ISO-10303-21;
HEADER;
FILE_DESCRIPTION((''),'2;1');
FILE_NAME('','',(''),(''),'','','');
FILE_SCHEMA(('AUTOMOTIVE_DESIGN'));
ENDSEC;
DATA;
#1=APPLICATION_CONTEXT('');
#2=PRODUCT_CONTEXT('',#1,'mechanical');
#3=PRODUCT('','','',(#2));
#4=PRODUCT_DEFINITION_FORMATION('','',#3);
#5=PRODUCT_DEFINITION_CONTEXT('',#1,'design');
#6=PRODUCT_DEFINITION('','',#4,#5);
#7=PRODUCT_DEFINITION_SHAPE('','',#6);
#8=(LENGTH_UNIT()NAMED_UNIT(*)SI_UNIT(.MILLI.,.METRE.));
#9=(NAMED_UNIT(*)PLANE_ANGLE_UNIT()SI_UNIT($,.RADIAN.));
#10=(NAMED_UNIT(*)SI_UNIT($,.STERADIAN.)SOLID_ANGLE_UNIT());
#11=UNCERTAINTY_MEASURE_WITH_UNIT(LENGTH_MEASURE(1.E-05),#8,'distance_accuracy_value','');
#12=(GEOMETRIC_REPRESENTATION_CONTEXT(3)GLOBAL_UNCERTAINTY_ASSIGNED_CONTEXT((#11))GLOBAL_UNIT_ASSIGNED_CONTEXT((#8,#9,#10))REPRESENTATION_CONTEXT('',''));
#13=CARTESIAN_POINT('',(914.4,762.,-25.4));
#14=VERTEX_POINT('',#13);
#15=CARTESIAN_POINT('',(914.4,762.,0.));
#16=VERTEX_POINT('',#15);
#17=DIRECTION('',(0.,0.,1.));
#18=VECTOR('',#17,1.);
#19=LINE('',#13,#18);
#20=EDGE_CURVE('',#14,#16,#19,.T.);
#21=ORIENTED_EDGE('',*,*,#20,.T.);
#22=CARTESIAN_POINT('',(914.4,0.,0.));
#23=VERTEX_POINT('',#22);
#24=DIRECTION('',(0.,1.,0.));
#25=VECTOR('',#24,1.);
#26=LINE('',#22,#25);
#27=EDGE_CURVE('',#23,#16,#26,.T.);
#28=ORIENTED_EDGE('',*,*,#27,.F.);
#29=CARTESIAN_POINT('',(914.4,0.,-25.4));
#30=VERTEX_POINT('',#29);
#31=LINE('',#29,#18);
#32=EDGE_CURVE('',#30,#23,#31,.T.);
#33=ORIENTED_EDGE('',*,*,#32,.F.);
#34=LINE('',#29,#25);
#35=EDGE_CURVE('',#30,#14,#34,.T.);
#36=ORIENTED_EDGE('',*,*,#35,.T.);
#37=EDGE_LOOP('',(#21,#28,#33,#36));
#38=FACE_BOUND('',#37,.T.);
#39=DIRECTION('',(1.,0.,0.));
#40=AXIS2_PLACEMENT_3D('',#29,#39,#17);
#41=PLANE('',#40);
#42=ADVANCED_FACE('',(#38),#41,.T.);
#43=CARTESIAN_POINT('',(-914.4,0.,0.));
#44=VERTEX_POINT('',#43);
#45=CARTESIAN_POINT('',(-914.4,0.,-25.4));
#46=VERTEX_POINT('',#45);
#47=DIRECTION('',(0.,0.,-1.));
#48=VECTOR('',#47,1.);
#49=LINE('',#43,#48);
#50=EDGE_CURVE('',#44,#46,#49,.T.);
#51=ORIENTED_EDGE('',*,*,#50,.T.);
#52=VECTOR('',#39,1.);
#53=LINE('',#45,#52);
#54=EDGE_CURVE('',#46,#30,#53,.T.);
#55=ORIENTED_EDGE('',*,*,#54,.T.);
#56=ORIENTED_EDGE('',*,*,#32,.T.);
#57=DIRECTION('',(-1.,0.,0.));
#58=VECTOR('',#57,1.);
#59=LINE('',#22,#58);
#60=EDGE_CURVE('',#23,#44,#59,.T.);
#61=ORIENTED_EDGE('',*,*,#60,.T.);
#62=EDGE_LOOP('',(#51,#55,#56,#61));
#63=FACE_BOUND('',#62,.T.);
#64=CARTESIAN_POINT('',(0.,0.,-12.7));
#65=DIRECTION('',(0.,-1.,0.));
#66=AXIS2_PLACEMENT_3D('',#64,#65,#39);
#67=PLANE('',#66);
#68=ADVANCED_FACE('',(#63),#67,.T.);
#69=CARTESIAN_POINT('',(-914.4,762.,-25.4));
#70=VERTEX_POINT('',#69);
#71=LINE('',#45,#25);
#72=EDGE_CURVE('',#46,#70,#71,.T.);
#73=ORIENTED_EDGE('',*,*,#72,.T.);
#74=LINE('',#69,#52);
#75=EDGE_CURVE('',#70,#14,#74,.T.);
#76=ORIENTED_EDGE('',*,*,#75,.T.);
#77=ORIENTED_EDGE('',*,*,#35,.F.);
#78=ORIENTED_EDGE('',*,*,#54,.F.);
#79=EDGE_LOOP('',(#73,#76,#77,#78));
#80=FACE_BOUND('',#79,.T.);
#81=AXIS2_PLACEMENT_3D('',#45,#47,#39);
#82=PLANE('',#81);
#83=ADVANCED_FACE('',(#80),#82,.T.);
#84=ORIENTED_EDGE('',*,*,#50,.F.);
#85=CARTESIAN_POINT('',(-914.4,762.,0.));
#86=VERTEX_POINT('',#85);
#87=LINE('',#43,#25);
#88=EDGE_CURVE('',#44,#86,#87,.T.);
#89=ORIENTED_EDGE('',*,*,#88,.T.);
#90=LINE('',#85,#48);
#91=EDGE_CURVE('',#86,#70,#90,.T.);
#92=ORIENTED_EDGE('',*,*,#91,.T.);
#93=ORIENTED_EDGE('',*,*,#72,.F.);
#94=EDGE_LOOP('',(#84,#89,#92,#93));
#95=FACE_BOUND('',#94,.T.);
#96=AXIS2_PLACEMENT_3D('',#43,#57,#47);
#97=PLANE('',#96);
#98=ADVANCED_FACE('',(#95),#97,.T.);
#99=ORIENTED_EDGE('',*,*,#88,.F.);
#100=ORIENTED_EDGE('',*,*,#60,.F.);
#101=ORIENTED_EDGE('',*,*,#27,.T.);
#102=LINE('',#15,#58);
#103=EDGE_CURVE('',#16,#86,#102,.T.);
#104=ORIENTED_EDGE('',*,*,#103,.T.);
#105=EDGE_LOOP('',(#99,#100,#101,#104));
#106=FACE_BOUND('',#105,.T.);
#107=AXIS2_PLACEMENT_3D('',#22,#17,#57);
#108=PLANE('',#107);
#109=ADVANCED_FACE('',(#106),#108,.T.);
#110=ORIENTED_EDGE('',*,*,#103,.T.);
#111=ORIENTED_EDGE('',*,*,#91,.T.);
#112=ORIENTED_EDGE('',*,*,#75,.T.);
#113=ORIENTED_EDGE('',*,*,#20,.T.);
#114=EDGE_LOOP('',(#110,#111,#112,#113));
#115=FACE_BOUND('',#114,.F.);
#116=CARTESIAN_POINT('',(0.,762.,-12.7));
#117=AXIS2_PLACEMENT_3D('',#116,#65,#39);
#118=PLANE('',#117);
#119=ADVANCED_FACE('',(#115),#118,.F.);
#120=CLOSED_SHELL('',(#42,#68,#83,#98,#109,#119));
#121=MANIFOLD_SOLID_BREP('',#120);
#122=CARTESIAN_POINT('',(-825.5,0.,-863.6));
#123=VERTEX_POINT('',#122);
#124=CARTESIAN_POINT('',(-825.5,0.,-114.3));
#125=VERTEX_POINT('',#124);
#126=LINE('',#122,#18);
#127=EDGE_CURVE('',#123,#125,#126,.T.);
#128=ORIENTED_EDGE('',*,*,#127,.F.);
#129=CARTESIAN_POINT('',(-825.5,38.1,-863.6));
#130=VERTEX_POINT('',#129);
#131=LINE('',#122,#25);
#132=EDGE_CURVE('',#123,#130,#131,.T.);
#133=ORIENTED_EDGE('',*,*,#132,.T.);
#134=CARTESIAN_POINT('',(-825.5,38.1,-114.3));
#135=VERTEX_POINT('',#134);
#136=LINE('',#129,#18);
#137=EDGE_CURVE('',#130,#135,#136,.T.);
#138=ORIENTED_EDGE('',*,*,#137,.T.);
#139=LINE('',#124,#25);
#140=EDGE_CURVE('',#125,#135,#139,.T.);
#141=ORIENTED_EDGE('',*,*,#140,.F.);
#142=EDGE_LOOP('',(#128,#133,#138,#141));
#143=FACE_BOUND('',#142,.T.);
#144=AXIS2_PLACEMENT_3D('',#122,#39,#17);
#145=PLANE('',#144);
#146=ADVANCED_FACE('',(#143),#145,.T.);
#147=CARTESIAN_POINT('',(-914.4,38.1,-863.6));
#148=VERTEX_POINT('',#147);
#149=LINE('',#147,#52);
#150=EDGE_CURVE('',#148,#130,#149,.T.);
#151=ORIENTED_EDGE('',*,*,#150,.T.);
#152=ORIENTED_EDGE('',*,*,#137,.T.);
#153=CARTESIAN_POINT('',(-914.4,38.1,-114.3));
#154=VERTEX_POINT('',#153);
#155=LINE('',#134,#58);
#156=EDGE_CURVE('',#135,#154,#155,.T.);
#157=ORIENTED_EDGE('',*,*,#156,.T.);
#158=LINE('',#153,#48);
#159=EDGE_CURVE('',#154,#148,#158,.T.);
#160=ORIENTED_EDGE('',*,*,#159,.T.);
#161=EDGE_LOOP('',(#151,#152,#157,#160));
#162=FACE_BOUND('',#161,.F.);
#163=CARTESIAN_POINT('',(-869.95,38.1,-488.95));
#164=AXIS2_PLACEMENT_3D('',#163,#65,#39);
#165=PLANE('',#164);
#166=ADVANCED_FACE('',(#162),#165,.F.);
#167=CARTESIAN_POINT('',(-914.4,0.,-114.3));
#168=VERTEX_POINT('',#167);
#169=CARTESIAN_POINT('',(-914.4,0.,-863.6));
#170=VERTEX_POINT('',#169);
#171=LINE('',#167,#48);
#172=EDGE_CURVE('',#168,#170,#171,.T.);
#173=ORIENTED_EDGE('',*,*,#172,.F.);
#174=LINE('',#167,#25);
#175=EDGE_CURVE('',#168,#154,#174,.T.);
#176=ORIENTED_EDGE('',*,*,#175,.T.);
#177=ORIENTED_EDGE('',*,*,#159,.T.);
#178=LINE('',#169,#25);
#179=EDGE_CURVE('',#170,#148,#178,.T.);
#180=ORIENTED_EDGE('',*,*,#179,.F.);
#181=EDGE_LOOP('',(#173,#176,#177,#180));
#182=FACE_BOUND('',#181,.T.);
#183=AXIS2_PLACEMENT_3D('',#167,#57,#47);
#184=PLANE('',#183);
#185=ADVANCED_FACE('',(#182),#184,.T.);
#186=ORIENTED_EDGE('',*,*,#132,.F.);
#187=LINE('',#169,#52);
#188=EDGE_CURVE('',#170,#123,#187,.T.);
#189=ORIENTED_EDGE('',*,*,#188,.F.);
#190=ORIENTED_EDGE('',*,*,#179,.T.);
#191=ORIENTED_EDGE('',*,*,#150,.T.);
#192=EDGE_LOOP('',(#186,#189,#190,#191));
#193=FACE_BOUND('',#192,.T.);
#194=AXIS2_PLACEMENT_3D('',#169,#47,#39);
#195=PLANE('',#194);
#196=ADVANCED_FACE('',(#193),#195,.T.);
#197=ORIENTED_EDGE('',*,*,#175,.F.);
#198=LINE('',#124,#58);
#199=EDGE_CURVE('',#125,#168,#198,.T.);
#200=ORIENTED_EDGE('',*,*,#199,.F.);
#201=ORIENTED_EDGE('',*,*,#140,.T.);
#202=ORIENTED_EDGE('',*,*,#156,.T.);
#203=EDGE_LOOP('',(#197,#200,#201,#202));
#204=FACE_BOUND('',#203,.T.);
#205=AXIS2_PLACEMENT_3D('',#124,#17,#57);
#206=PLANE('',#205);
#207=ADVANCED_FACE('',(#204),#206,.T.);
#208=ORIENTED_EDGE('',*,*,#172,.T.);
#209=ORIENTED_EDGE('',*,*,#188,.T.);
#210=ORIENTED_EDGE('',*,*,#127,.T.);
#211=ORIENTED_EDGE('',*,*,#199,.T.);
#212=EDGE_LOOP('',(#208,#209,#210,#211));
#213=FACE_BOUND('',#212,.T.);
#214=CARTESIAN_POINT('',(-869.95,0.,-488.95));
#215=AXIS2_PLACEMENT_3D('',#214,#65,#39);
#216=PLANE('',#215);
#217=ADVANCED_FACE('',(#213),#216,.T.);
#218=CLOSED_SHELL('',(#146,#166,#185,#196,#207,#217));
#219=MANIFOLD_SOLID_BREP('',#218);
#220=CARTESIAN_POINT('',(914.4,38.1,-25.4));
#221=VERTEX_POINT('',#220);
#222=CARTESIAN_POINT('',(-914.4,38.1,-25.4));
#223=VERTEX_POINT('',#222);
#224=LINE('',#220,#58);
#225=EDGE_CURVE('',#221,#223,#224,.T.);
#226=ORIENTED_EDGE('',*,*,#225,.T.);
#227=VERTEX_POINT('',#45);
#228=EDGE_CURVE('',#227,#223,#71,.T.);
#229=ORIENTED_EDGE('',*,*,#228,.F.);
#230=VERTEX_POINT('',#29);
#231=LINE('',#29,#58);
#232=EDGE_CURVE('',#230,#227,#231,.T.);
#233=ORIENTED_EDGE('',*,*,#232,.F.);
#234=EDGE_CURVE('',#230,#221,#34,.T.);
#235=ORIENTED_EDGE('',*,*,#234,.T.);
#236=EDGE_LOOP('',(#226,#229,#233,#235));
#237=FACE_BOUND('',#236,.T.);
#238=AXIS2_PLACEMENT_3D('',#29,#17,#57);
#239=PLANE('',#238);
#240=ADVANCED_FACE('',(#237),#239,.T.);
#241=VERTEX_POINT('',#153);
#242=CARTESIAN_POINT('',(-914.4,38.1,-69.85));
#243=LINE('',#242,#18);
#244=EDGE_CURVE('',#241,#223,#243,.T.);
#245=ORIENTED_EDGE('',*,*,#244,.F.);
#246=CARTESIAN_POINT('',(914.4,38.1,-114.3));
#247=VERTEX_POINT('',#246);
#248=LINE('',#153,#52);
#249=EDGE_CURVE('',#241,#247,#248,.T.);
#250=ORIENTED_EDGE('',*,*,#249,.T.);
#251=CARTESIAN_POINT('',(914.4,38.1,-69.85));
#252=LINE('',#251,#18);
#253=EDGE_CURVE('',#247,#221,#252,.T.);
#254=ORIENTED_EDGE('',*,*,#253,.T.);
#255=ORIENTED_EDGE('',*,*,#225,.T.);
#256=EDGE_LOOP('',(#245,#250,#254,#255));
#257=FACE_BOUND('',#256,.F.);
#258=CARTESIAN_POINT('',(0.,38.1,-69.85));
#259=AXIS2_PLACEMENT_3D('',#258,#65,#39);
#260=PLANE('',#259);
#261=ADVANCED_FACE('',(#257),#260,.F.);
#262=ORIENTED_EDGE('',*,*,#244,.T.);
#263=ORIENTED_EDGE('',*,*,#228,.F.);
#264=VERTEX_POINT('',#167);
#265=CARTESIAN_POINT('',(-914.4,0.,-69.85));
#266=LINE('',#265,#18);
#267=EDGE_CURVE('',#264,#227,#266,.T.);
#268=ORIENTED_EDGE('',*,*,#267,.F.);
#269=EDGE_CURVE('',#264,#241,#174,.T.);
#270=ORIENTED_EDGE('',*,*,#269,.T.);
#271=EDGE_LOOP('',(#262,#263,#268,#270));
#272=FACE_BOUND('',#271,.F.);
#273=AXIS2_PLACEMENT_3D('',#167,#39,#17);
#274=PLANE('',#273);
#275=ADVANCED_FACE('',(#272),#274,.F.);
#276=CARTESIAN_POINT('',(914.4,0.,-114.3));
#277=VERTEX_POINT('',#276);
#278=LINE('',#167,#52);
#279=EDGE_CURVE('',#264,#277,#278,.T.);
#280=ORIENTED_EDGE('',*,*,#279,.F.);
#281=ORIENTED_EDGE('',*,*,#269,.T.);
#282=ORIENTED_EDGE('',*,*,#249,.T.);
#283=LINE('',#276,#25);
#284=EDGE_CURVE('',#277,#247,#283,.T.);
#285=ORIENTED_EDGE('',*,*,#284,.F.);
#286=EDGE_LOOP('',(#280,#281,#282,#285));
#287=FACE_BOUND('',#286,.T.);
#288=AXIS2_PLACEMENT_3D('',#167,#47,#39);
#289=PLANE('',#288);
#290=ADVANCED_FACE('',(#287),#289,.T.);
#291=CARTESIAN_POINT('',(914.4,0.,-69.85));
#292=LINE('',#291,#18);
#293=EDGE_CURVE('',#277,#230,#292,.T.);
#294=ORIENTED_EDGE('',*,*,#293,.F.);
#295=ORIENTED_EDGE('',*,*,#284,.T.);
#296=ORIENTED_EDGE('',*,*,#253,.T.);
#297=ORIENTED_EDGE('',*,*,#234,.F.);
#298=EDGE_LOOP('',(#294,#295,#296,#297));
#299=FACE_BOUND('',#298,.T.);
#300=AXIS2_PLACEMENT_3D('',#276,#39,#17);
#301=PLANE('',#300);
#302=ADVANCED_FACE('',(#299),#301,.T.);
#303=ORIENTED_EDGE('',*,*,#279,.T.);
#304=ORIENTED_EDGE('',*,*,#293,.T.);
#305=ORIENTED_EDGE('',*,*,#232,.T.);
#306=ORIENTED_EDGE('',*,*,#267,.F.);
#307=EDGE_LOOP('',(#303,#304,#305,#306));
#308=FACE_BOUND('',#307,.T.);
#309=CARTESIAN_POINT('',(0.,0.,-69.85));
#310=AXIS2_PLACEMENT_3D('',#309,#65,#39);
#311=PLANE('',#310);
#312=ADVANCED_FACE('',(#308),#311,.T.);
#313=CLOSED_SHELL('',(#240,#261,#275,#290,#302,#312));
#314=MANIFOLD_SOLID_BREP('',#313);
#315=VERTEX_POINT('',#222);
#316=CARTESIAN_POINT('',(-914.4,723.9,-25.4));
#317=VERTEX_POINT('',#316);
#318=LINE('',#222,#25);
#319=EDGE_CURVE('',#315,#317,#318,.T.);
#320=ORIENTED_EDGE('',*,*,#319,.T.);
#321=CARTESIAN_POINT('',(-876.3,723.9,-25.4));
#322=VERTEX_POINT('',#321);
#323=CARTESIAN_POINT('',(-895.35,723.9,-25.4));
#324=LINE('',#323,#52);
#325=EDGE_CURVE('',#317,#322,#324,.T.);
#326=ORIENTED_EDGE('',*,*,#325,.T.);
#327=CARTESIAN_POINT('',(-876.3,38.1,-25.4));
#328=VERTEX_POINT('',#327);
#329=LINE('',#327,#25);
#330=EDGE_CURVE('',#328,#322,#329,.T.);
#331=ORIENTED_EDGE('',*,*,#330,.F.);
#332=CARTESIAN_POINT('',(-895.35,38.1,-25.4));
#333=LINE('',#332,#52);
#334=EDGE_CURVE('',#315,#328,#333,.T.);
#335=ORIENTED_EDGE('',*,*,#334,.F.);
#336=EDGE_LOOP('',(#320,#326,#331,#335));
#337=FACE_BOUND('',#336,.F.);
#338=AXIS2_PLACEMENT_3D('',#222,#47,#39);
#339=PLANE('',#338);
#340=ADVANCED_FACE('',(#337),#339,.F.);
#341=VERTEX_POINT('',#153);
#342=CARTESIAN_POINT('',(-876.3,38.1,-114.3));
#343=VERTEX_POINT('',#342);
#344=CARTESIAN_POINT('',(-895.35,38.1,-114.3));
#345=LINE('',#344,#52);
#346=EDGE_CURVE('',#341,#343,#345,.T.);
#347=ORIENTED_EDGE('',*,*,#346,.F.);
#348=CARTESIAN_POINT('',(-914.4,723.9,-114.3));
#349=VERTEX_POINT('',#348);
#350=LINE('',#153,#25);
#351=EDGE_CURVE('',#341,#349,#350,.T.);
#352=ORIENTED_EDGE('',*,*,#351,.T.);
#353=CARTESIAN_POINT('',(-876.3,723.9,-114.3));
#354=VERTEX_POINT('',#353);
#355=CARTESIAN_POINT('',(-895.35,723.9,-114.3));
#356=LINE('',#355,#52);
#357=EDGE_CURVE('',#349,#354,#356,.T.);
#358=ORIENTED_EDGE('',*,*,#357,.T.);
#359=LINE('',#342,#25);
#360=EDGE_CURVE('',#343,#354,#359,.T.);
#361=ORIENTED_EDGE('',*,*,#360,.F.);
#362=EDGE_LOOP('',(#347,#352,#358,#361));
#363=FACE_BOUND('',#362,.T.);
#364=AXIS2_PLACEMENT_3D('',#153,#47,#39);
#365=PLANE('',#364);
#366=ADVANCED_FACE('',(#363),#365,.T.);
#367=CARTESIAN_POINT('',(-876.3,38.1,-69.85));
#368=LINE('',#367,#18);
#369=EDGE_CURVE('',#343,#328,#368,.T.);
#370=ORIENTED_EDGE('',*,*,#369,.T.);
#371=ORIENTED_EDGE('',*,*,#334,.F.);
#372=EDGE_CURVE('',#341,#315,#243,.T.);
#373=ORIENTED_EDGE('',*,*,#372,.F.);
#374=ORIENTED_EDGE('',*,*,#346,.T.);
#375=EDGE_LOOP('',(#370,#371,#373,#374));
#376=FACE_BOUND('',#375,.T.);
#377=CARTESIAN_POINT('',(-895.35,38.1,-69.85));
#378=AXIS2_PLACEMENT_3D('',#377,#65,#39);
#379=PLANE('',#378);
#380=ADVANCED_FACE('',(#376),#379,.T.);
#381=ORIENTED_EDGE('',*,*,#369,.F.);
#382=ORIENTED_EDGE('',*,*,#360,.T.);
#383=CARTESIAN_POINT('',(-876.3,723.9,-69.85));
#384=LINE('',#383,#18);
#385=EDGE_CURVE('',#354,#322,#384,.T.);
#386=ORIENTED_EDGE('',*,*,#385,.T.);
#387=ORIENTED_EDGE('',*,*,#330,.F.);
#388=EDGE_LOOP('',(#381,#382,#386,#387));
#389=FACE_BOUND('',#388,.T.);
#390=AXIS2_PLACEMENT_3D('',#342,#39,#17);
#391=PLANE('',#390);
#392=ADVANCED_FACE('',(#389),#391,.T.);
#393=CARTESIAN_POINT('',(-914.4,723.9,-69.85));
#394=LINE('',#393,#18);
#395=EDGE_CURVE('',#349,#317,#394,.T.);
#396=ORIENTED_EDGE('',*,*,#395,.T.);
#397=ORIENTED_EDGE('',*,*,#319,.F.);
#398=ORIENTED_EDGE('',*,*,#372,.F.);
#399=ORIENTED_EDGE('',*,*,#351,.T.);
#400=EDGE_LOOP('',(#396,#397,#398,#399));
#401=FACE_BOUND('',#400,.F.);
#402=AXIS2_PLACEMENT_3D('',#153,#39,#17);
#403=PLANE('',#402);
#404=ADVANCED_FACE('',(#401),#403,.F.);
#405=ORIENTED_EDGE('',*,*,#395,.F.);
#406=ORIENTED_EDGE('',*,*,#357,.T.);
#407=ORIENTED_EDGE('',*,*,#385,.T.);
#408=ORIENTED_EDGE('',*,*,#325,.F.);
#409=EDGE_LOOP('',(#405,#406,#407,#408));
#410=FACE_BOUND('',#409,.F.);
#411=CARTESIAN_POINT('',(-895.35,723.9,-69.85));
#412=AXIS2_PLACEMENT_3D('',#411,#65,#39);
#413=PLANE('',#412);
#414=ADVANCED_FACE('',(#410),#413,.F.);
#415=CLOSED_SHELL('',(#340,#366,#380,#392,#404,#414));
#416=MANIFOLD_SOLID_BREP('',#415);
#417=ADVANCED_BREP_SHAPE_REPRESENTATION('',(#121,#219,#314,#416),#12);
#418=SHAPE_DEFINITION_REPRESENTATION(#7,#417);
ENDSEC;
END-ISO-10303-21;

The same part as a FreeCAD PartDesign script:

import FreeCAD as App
import Part
import Sketcher
from FreeCAD import Vector
Q = App.Units.Quantity

doc = App.newDocument("Part")
body = doc.addObject("PartDesign::Body", "Body")

sketch1 = body.newObject("Sketcher::SketchObject", "Sketch")
sketch1.AttachmentSupport = (doc.getObject("XZ_Plane"), [""])
sketch1.MapMode = "FlatFace"
sketch1.addGeometry(Part.LineSegment(Vector(914, 0, 0), Vector(-914, 0, 0)), False)
sketch1.addGeometry(Part.LineSegment(Vector(-914, 0, 0), Vector(-914, -25, 0)), False)
sketch1.addGeometry(Part.LineSegment(Vector(-914, -25, 0), Vector(914, -25, 0)), False)
sketch1.addGeometry(Part.LineSegment(Vector(914, -25, 0), Vector(914, 0, 0)), False)
sketch1.addConstraint(Sketcher.Constraint("Coincident", 0, 2, 1, 1))
sketch1.addConstraint(Sketcher.Constraint("Coincident", 1, 2, 2, 1))
sketch1.addConstraint(Sketcher.Constraint("Coincident", 2, 2, 3, 1))
sketch1.addConstraint(Sketcher.Constraint("Coincident", 3, 2, 0, 1))
sketch1.addConstraint(Sketcher.Constraint("Horizontal", 0))
sketch1.addConstraint(Sketcher.Constraint("Vertical", 1))
sketch1.addConstraint(Sketcher.Constraint("Horizontal", 2))
sketch1.addConstraint(Sketcher.Constraint("Vertical", 3))
sketch1.addConstraint(Sketcher.Constraint("Symmetric", 0, 2, 3, 2, -1, 1))
sketch1.addConstraint(Sketcher.Constraint("DistanceX", 0, 2, 0, 1, Q("72 in")))
sketch1.addConstraint(Sketcher.Constraint("DistanceY", 1, 2, 1, 1, Q("1 in")))
pad1 = body.newObject("PartDesign::Pad", "Pad")
pad1.Profile = sketch1
pad1.Length = Q("30 in")
pad1.Reversed = True
body2 = doc.addObject("PartDesign::Body", "Body001")

sketch2 = body2.newObject("Sketcher::SketchObject", "Sketch001")
sketch2.AttachmentSupport = (doc.getObject("XZ_Plane001"), [""])
sketch2.MapMode = "FlatFace"
sketch2.addGeometry(Part.LineSegment(Vector(-914, -114, 0), Vector(-914, -864, 0)), False)
sketch2.addGeometry(Part.LineSegment(Vector(-914, -864, 0), Vector(-826, -864, 0)), False)
sketch2.addGeometry(Part.LineSegment(Vector(-826, -864, 0), Vector(-826, -114, 0)), False)
sketch2.addGeometry(Part.LineSegment(Vector(-826, -114, 0), Vector(-914, -114, 0)), False)
sketch2.addConstraint(Sketcher.Constraint("Coincident", 0, 2, 1, 1))
sketch2.addConstraint(Sketcher.Constraint("Coincident", 1, 2, 2, 1))
sketch2.addConstraint(Sketcher.Constraint("Coincident", 2, 2, 3, 1))
sketch2.addConstraint(Sketcher.Constraint("Coincident", 3, 2, 0, 1))
sketch2.addConstraint(Sketcher.Constraint("Vertical", 0))
sketch2.addConstraint(Sketcher.Constraint("Horizontal", 1))
sketch2.addConstraint(Sketcher.Constraint("Vertical", 2))
sketch2.addConstraint(Sketcher.Constraint("Horizontal", 3))
sketch2.addConstraint(Sketcher.Constraint("DistanceX", 1, 1, 1, 2, Q("3.5 in")))
sketch2.addConstraint(Sketcher.Constraint("DistanceY", 0, 2, 0, 1, Q("29.5 in")))
sketch2.addConstraint(Sketcher.Constraint("DistanceX", 0, 2, -1, 1, Q("36 in")))
sketch2.addConstraint(Sketcher.Constraint("DistanceY", 0, 2, -1, 1, Q("34 in")))
pad2 = body2.newObject("PartDesign::Pad", "Pad001")
pad2.Profile = sketch2
pad2.Length = Q("1.5 in")
pad2.Reversed = True
body3 = doc.addObject("PartDesign::Body", "Body002")

sketch3 = body3.newObject("Sketcher::SketchObject", "Sketch002")
sketch3.AttachmentSupport = (doc.getObject("XZ_Plane002"), [""])
sketch3.MapMode = "FlatFace"
sketch3.addGeometry(Part.LineSegment(Vector(-914, -25, 0), Vector(-914, -114, 0)), False)
sketch3.addGeometry(Part.LineSegment(Vector(-914, -114, 0), Vector(-876, -114, 0)), False)
sketch3.addGeometry(Part.LineSegment(Vector(-876, -114, 0), Vector(-876, -25, 0)), False)
sketch3.addGeometry(Part.LineSegment(Vector(-876, -25, 0), Vector(-914, -25, 0)), False)
sketch3.addConstraint(Sketcher.Constraint("Coincident", 0, 2, 1, 1))
sketch3.addConstraint(Sketcher.Constraint("Coincident", 1, 2, 2, 1))
sketch3.addConstraint(Sketcher.Constraint("Coincident", 2, 2, 3, 1))
sketch3.addConstraint(Sketcher.Constraint("Coincident", 3, 2, 0, 1))
sketch3.addConstraint(Sketcher.Constraint("Vertical", 0))
sketch3.addConstraint(Sketcher.Constraint("Horizontal", 1))
sketch3.addConstraint(Sketcher.Constraint("Vertical", 2))
sketch3.addConstraint(Sketcher.Constraint("Horizontal", 3))
sketch3.addConstraint(Sketcher.Constraint("DistanceX", 1, 1, 1, 2, Q("1.5 in")))
sketch3.addConstraint(Sketcher.Constraint("DistanceY", 0, 2, 0, 1, Q("3.5 in")))
sketch3.addConstraint(Sketcher.Constraint("DistanceX", 0, 2, -1, 1, Q("36 in")))
sketch3.addConstraint(Sketcher.Constraint("DistanceY", 2, 2, -1, 1, Q("1 in")))
pad3 = body3.newObject("PartDesign::Pad", "Pad002")
pad3.Profile = sketch3
pad3.Length = Q("27 in")
pad3.Reversed = True
body4 = doc.addObject("PartDesign::Body", "Body003")
doc.recompute()

body3.Placement = App.Placement(Vector(0, 38.1, 0), App.Rotation(Vector(0, 0, 1), 0))
boolean = body4.newObject("PartDesign::Boolean", "Boolean")
boolean.Type = "Fuse"
boolean.addObjects([body3])
body5 = doc.addObject("PartDesign::Body", "Body004")

sketch4 = body5.newObject("Sketcher::SketchObject", "Sketch003")
sketch4.AttachmentSupport = (doc.getObject("XZ_Plane004"), [""])
sketch4.MapMode = "FlatFace"
sketch4.addGeometry(Part.LineSegment(Vector(-914, -25, 0), Vector(-914, -114, 0)), False)
sketch4.addGeometry(Part.LineSegment(Vector(-914, -114, 0), Vector(914, -114, 0)), False)
sketch4.addGeometry(Part.LineSegment(Vector(914, -114, 0), Vector(914, -25, 0)), False)
sketch4.addGeometry(Part.LineSegment(Vector(914, -25, 0), Vector(-914, -25, 0)), False)
sketch4.addConstraint(Sketcher.Constraint("Coincident", 0, 2, 1, 1))
sketch4.addConstraint(Sketcher.Constraint("Coincident", 1, 2, 2, 1))
sketch4.addConstraint(Sketcher.Constraint("Coincident", 2, 2, 3, 1))
sketch4.addConstraint(Sketcher.Constraint("Coincident", 3, 2, 0, 1))
sketch4.addConstraint(Sketcher.Constraint("Vertical", 0))
sketch4.addConstraint(Sketcher.Constraint("Horizontal", 1))
sketch4.addConstraint(Sketcher.Constraint("Vertical", 2))
sketch4.addConstraint(Sketcher.Constraint("Horizontal", 3))
sketch4.addConstraint(Sketcher.Constraint("DistanceX", 1, 1, 1, 2, Q("72 in")))
sketch4.addConstraint(Sketcher.Constraint("DistanceY", 0, 2, 0, 1, Q("3.5 in")))
sketch4.addConstraint(Sketcher.Constraint("DistanceX", 0, 2, -1, 1, Q("36 in")))
sketch4.addConstraint(Sketcher.Constraint("DistanceY", 2, 2, -1, 1, Q("1 in")))
pad4 = body5.newObject("PartDesign::Pad", "Pad003")
pad4.Profile = sketch4
pad4.Length = Q("1.5 in")
pad4.Reversed = True

doc.recompute()
